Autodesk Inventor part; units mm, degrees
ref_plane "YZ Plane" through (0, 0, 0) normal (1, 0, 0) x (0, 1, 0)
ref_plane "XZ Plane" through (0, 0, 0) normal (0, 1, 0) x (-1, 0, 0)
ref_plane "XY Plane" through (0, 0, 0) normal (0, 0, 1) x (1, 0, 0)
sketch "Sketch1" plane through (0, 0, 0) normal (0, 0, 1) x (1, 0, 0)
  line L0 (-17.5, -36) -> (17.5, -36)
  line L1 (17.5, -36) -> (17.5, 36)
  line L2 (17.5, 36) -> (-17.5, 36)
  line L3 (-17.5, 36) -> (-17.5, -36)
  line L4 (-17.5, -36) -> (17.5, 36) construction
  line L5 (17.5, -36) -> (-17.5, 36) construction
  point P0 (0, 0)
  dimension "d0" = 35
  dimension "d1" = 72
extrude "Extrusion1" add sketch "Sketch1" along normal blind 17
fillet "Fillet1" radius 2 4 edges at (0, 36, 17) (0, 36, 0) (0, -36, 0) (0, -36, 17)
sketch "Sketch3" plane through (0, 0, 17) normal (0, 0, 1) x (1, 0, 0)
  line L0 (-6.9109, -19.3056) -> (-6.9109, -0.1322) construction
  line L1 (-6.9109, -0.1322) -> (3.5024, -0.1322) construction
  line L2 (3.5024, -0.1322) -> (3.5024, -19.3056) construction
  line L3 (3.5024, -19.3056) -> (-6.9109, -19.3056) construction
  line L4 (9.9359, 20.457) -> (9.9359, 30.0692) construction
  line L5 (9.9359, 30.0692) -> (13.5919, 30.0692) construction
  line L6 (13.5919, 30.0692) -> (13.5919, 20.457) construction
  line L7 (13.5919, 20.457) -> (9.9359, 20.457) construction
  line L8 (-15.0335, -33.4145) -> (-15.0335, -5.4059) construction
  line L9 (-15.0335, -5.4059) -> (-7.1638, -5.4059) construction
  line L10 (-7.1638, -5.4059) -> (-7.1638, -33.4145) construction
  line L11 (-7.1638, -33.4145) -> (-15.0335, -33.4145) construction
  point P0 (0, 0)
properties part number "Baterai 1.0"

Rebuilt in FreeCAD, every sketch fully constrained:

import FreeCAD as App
import Part
import Sketcher

V = App.Vector


def edges_at(feature, points):
    """Names of the edges that pass closest to the given points."""
    edges = feature.Shape.Edges
    near = lambda p: min(range(len(edges)), key=lambda i: edges[i].distToShape(Part.Vertex(*p))[0])
    return sorted({f"Edge{near(p) + 1}" for p in points})

doc = App.newDocument("Part")
body = doc.addObject("PartDesign::Body", "Body")

sketch1 = body.newObject("Sketcher::SketchObject", "Sketch")
sketch1.AttachmentSupport = (doc.getObject("XY_Plane"), [""])
sketch1.MapMode = "FlatFace"
sketch1.addGeometry([
    Part.LineSegment(V(-17.5, 36, 0), V(-17.5, -36, 0)),
    Part.LineSegment(V(-17.5, -36, 0), V(17.5, -36, 0)),
    Part.LineSegment(V(17.5, -36, 0), V(17.5, 36, 0)),
    Part.LineSegment(V(17.5, 36, 0), V(-17.5, 36, 0)),
], False)
sketch1.addConstraint([
    Sketcher.Constraint("Coincident", 0, 2, 1, 1),
    Sketcher.Constraint("Coincident", 1, 2, 2, 1),
    Sketcher.Constraint("Coincident", 2, 2, 3, 1),
    Sketcher.Constraint("Coincident", 3, 2, 0, 1),
    Sketcher.Constraint("Vertical", 0),
    Sketcher.Constraint("Horizontal", 1),
    Sketcher.Constraint("Vertical", 2),
    Sketcher.Constraint("Horizontal", 3),
    Sketcher.Constraint("Symmetric", 0, 2, 2, 2, -1, 1),
    Sketcher.Constraint("DistanceX", 1, 1, 1, 2, 35.0),
    Sketcher.Constraint("DistanceY", 0, 2, 0, 1, 72.0),
])
pad1 = body.newObject("PartDesign::Pad", "Pad")
pad1.Profile = sketch1
pad1.Length = 17
doc.recompute()

fillet = body.newObject("PartDesign::Fillet", "Fillet")
fillet.Base = (pad1, edges_at(pad1, [
    (0, 36, 17),
    (0, 36, 0),
    (0, -36, 0),
    (0, -36, 17),
]))
fillet.Radius = 2

doc.recompute()
